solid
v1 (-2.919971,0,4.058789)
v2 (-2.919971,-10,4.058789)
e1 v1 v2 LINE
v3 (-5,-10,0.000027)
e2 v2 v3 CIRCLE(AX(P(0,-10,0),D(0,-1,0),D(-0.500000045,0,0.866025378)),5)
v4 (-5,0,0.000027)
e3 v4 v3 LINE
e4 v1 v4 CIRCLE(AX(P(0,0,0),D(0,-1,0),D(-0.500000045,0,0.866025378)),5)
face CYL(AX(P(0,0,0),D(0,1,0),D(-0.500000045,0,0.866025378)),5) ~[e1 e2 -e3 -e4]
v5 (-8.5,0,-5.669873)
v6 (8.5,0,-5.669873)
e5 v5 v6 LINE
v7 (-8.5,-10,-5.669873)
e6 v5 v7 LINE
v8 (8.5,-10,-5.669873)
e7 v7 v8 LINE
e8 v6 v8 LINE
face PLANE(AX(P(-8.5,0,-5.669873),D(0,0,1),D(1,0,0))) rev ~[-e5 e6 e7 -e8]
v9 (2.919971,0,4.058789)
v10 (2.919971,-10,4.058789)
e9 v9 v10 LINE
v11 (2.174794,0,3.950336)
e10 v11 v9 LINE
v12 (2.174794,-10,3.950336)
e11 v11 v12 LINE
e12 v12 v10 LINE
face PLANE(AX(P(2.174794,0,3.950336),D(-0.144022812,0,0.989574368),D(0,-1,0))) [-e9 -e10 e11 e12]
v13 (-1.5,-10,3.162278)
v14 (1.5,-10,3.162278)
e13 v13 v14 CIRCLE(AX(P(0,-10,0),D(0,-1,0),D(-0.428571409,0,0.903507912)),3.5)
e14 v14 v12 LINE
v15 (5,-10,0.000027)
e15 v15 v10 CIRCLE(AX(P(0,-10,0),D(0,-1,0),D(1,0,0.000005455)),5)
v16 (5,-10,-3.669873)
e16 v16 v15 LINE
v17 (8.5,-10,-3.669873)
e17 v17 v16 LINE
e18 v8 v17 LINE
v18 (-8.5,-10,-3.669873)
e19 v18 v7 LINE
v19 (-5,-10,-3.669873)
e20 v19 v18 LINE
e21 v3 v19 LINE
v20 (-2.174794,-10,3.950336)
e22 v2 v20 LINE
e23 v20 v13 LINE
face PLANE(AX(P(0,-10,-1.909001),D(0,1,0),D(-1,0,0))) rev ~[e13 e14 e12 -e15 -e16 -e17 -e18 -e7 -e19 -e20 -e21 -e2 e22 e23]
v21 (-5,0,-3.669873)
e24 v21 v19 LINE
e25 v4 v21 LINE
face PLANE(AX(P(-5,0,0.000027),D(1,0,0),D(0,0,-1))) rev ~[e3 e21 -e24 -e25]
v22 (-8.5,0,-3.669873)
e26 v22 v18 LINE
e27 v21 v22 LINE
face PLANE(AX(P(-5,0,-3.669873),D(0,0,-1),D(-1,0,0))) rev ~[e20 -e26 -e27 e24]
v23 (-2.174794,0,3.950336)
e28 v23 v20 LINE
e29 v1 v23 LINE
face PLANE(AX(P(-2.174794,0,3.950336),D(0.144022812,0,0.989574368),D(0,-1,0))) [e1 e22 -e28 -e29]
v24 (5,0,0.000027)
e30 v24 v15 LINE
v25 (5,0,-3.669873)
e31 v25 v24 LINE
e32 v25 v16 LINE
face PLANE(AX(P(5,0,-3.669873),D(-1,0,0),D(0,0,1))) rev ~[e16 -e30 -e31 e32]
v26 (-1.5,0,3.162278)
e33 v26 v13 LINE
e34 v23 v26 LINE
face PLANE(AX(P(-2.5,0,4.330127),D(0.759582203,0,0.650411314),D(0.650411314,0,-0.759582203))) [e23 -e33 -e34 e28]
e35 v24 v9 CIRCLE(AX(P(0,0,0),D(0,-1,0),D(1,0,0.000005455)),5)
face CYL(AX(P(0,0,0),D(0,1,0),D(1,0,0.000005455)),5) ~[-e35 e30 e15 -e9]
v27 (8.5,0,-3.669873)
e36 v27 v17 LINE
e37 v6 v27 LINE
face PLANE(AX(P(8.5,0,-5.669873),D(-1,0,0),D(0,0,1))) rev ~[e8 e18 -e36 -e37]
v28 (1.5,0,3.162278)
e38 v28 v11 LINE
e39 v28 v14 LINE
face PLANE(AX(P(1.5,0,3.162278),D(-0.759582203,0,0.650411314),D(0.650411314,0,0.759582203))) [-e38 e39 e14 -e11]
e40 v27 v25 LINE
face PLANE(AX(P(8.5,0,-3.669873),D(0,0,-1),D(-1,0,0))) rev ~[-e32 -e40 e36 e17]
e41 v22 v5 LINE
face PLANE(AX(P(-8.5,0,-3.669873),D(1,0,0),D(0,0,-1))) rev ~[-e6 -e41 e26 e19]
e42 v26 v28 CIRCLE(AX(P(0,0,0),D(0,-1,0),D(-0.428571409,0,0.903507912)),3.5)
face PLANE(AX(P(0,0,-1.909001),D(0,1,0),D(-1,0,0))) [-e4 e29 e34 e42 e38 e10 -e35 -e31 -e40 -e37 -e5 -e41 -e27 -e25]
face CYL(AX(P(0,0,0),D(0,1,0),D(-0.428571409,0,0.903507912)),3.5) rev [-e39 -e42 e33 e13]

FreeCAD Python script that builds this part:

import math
import FreeCAD as App
import Part
import Sketcher

V = App.Vector
Q = App.Units.Quantity


def edges_at(feature, points):
    """Names of the edges that pass closest to the given points."""
    edges = feature.Shape.Edges
    near = lambda p: min(range(len(edges)), key=lambda i: edges[i].distToShape(Part.Vertex(*p))[0])
    return sorted({f"Edge{near(p) + 1}" for p in points})

doc = App.newDocument("Part")
body = doc.addObject("PartDesign::Body", "Body")

sketch1 = body.newObject("Sketcher::SketchObject", "Sketch")
sketch1.AttachmentSupport = (doc.getObject("XZ_Plane"), [""])
sketch1.MapMode = "FlatFace"
sketch1.addGeometry(Part.ArcOfCircle(Part.Circle(V(0, 0, 0), V(0, 0, 1), 3.5), math.radians(115.376932), math.radians(424.623068)), False)
sketch1.addGeometry(Part.LineSegment(V(-1.5, 3.162278, 0), V(-2.5, 4.330127, 0)), False)
sketch1.addGeometry(Part.ArcOfCircle(Part.Circle(V(0, 0, 0), V(0, 0, 1), 5), math.radians(120.000003), math.radians(179.999687)), False)
sketch1.addGeometry(Part.LineSegment(V(-5, 0.000027, 0), V(-5, -3.669873, 0)), False)
sketch1.addGeometry(Part.LineSegment(V(-5, -3.669873, 0), V(-8.5, -3.669873, 0)), False)
sketch1.addGeometry(Part.LineSegment(V(-8.5, -3.669873, 0), V(-8.5, -5.669873, 0)), False)
sketch1.addGeometry(Part.LineSegment(V(-8.5, -5.669873, 0), V(8.5, -5.669873, 0)), False)
sketch1.addGeometry(Part.LineSegment(V(8.5, -5.669873, 0), V(8.5, -3.669873, 0)), False)
sketch1.addGeometry(Part.LineSegment(V(8.5, -3.669873, 0), V(5, -3.669873, 0)), False)
sketch1.addGeometry(Part.LineSegment(V(5, -3.669873, 0), V(5, 0.000027, 0)), False)
sketch1.addGeometry(Part.ArcOfCircle(Part.Circle(V(0, 0, 0), V(0, 0, 1), 5), math.radians(0.000313), math.radians(59.999997)), False)
sketch1.addGeometry(Part.LineSegment(V(2.5, 4.330127, 0), V(1.5, 3.162278, 0)), False)
sketch1.addConstraint(Sketcher.Constraint("Coincident", 0, 1, 1, 1))
sketch1.addConstraint(Sketcher.Constraint("Coincident", 1, 2, 2, 1))
sketch1.addConstraint(Sketcher.Constraint("Coincident", 2, 2, 3, 1))
sketch1.addConstraint(Sketcher.Constraint("Coincident", 3, 2, 4, 1))
sketch1.addConstraint(Sketcher.Constraint("Coincident", 4, 2, 5, 1))
sketch1.addConstraint(Sketcher.Constraint("Coincident", 5, 2, 6, 1))
sketch1.addConstraint(Sketcher.Constraint("Coincident", 6, 2, 7, 1))
sketch1.addConstraint(Sketcher.Constraint("Coincident", 7, 2, 8, 1))
sketch1.addConstraint(Sketcher.Constraint("Coincident", 8, 2, 9, 1))
sketch1.addConstraint(Sketcher.Constraint("Coincident", 9, 2, 10, 1))
sketch1.addConstraint(Sketcher.Constraint("Coincident", 10, 2, 11, 1))
sketch1.addConstraint(Sketcher.Constraint("Coincident", 11, 2, 0, 2))
sketch1.addConstraint(Sketcher.Constraint("Vertical", 3))
sketch1.addConstraint(Sketcher.Constraint("Horizontal", 4))
sketch1.addConstraint(Sketcher.Constraint("Vertical", 5))
sketch1.addConstraint(Sketcher.Constraint("Horizontal", 6))
sketch1.addConstraint(Sketcher.Constraint("Vertical", 7))
sketch1.addConstraint(Sketcher.Constraint("Horizontal", 8))
sketch1.addConstraint(Sketcher.Constraint("Vertical", 9))
sketch1.addConstraint(Sketcher.Constraint("Coincident", 0, 3, -1, 1))
sketch1.addConstraint(Sketcher.Constraint("Coincident", 2, 3, -1, 1))
sketch1.addConstraint(Sketcher.Constraint("Coincident", 10, 3, -1, 1))
sketch1.addConstraint(Sketcher.Constraint("Equal", 2, 10))
sketch1.addConstraint(Sketcher.Constraint("Symmetric", 4, 2, 7, 2, -2))
sketch1.addConstraint(Sketcher.Constraint("Horizontal", 2, 2, 9, 2))
sketch1.addConstraint(Sketcher.Constraint("Horizontal", 1, 2, 10, 2))
sketch1.addConstraint(Sketcher.Constraint("Horizontal", 0, 1, 11, 2))
sketch1.addConstraint(Sketcher.Constraint("Radius", 2, Q("5 mm")))
sketch1.addConstraint(Sketcher.Constraint("Radius", 0, Q("3.5 mm")))
sketch1.addConstraint(Sketcher.Constraint("DistanceX", 6, 1, 6, 2, Q("17 mm")))
sketch1.addConstraint(Sketcher.Constraint("DistanceY", 5, 2, 5, 1, Q("2 mm")))
sketch1.addConstraint(Sketcher.Constraint("DistanceX", 1, 2, 0, 1, Q("1 mm")))
sketch1.addConstraint(Sketcher.Constraint("DistanceX", 0, 1, 6, 2, Q("10 mm")))
sketch1.addConstraint(Sketcher.Constraint("DistanceY", 3, 2, 3, 1, Q("3.6699 mm")))
sketch1.addConstraint(Sketcher.Constraint("DistanceY", 2, 2, 1, 2, Q("4.3301 mm")))
pad1 = body.newObject("PartDesign::Pad", "Pad")
pad1.Profile = sketch1
pad1.Length = 10
doc.recompute()

chamfer = body.newObject("PartDesign::Chamfer", "Chamfer")
chamfer.Base = (pad1, edges_at(pad1, [(-2.5, -5, 4.33)]))
chamfer.Size = 0.5
doc.recompute()

chamfer2 = body.newObject("PartDesign::Chamfer", "Chamfer001")
chamfer2.Base = (chamfer, edges_at(chamfer, [(2.5, -5, 4.33)]))
chamfer2.Size = 0.5

doc.recompute()
